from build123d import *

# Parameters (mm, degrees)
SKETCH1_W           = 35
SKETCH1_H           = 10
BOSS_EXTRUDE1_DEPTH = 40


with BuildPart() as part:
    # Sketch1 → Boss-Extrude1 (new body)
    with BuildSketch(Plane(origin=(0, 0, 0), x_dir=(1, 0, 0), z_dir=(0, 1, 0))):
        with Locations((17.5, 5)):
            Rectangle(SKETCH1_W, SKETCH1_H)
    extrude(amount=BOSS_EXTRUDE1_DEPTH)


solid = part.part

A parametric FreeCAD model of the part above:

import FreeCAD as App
import Part
import Sketcher
from FreeCAD import Vector


def add_polygon(sketch, points):
    """Adds a closed chain of lines whose ends are joined by coincident constraints."""
    first, n = sketch.GeometryCount, len(points)
    for a, b in zip(points, points[1:] + points[:1]):
        sketch.addGeometry(Part.LineSegment(App.Vector(*a, 0), App.Vector(*b, 0)), False)
    for i in range(n):
        sketch.addConstraint(Sketcher.Constraint("Coincident", first + i, 2, first + (i + 1) % n, 1))

doc = App.newDocument("Part")
body = doc.addObject("PartDesign::Body", "Body")

# Sketch on XZ plane
sketch1 = doc.addObject("Sketcher::SketchObject", "Sketch")
body.addObject(sketch1)
sketch1.AttachmentSupport = (doc.XZ_Plane, [""])
sketch1.MapMode = "FlatFace"
add_polygon(sketch1, [(0, -10), (0, 0), (35, 0), (35, -10)])  # lines 0-3
sketch1.addConstraint(Sketcher.Constraint("Vertical", 0))
sketch1.addConstraint(Sketcher.Constraint("Horizontal", 1))
sketch1.addConstraint(Sketcher.Constraint("Vertical", 2))
sketch1.addConstraint(Sketcher.Constraint("Horizontal", 3))
sketch1.addConstraint(Sketcher.Constraint("Coincident", 0, 2, -1, 1))
sketch1.addConstraint(Sketcher.Constraint("DistanceX", 1, 1, 1, 2, 35.0))
sketch1.addConstraint(Sketcher.Constraint("DistanceY", 0, 1, 0, 2, 10.0))
pad1 = doc.addObject("PartDesign::Pad", "Pad")
body.addObject(pad1)
pad1.Profile = sketch1
pad1.Length = 40
pad1.Reversed = True

doc.recompute()
